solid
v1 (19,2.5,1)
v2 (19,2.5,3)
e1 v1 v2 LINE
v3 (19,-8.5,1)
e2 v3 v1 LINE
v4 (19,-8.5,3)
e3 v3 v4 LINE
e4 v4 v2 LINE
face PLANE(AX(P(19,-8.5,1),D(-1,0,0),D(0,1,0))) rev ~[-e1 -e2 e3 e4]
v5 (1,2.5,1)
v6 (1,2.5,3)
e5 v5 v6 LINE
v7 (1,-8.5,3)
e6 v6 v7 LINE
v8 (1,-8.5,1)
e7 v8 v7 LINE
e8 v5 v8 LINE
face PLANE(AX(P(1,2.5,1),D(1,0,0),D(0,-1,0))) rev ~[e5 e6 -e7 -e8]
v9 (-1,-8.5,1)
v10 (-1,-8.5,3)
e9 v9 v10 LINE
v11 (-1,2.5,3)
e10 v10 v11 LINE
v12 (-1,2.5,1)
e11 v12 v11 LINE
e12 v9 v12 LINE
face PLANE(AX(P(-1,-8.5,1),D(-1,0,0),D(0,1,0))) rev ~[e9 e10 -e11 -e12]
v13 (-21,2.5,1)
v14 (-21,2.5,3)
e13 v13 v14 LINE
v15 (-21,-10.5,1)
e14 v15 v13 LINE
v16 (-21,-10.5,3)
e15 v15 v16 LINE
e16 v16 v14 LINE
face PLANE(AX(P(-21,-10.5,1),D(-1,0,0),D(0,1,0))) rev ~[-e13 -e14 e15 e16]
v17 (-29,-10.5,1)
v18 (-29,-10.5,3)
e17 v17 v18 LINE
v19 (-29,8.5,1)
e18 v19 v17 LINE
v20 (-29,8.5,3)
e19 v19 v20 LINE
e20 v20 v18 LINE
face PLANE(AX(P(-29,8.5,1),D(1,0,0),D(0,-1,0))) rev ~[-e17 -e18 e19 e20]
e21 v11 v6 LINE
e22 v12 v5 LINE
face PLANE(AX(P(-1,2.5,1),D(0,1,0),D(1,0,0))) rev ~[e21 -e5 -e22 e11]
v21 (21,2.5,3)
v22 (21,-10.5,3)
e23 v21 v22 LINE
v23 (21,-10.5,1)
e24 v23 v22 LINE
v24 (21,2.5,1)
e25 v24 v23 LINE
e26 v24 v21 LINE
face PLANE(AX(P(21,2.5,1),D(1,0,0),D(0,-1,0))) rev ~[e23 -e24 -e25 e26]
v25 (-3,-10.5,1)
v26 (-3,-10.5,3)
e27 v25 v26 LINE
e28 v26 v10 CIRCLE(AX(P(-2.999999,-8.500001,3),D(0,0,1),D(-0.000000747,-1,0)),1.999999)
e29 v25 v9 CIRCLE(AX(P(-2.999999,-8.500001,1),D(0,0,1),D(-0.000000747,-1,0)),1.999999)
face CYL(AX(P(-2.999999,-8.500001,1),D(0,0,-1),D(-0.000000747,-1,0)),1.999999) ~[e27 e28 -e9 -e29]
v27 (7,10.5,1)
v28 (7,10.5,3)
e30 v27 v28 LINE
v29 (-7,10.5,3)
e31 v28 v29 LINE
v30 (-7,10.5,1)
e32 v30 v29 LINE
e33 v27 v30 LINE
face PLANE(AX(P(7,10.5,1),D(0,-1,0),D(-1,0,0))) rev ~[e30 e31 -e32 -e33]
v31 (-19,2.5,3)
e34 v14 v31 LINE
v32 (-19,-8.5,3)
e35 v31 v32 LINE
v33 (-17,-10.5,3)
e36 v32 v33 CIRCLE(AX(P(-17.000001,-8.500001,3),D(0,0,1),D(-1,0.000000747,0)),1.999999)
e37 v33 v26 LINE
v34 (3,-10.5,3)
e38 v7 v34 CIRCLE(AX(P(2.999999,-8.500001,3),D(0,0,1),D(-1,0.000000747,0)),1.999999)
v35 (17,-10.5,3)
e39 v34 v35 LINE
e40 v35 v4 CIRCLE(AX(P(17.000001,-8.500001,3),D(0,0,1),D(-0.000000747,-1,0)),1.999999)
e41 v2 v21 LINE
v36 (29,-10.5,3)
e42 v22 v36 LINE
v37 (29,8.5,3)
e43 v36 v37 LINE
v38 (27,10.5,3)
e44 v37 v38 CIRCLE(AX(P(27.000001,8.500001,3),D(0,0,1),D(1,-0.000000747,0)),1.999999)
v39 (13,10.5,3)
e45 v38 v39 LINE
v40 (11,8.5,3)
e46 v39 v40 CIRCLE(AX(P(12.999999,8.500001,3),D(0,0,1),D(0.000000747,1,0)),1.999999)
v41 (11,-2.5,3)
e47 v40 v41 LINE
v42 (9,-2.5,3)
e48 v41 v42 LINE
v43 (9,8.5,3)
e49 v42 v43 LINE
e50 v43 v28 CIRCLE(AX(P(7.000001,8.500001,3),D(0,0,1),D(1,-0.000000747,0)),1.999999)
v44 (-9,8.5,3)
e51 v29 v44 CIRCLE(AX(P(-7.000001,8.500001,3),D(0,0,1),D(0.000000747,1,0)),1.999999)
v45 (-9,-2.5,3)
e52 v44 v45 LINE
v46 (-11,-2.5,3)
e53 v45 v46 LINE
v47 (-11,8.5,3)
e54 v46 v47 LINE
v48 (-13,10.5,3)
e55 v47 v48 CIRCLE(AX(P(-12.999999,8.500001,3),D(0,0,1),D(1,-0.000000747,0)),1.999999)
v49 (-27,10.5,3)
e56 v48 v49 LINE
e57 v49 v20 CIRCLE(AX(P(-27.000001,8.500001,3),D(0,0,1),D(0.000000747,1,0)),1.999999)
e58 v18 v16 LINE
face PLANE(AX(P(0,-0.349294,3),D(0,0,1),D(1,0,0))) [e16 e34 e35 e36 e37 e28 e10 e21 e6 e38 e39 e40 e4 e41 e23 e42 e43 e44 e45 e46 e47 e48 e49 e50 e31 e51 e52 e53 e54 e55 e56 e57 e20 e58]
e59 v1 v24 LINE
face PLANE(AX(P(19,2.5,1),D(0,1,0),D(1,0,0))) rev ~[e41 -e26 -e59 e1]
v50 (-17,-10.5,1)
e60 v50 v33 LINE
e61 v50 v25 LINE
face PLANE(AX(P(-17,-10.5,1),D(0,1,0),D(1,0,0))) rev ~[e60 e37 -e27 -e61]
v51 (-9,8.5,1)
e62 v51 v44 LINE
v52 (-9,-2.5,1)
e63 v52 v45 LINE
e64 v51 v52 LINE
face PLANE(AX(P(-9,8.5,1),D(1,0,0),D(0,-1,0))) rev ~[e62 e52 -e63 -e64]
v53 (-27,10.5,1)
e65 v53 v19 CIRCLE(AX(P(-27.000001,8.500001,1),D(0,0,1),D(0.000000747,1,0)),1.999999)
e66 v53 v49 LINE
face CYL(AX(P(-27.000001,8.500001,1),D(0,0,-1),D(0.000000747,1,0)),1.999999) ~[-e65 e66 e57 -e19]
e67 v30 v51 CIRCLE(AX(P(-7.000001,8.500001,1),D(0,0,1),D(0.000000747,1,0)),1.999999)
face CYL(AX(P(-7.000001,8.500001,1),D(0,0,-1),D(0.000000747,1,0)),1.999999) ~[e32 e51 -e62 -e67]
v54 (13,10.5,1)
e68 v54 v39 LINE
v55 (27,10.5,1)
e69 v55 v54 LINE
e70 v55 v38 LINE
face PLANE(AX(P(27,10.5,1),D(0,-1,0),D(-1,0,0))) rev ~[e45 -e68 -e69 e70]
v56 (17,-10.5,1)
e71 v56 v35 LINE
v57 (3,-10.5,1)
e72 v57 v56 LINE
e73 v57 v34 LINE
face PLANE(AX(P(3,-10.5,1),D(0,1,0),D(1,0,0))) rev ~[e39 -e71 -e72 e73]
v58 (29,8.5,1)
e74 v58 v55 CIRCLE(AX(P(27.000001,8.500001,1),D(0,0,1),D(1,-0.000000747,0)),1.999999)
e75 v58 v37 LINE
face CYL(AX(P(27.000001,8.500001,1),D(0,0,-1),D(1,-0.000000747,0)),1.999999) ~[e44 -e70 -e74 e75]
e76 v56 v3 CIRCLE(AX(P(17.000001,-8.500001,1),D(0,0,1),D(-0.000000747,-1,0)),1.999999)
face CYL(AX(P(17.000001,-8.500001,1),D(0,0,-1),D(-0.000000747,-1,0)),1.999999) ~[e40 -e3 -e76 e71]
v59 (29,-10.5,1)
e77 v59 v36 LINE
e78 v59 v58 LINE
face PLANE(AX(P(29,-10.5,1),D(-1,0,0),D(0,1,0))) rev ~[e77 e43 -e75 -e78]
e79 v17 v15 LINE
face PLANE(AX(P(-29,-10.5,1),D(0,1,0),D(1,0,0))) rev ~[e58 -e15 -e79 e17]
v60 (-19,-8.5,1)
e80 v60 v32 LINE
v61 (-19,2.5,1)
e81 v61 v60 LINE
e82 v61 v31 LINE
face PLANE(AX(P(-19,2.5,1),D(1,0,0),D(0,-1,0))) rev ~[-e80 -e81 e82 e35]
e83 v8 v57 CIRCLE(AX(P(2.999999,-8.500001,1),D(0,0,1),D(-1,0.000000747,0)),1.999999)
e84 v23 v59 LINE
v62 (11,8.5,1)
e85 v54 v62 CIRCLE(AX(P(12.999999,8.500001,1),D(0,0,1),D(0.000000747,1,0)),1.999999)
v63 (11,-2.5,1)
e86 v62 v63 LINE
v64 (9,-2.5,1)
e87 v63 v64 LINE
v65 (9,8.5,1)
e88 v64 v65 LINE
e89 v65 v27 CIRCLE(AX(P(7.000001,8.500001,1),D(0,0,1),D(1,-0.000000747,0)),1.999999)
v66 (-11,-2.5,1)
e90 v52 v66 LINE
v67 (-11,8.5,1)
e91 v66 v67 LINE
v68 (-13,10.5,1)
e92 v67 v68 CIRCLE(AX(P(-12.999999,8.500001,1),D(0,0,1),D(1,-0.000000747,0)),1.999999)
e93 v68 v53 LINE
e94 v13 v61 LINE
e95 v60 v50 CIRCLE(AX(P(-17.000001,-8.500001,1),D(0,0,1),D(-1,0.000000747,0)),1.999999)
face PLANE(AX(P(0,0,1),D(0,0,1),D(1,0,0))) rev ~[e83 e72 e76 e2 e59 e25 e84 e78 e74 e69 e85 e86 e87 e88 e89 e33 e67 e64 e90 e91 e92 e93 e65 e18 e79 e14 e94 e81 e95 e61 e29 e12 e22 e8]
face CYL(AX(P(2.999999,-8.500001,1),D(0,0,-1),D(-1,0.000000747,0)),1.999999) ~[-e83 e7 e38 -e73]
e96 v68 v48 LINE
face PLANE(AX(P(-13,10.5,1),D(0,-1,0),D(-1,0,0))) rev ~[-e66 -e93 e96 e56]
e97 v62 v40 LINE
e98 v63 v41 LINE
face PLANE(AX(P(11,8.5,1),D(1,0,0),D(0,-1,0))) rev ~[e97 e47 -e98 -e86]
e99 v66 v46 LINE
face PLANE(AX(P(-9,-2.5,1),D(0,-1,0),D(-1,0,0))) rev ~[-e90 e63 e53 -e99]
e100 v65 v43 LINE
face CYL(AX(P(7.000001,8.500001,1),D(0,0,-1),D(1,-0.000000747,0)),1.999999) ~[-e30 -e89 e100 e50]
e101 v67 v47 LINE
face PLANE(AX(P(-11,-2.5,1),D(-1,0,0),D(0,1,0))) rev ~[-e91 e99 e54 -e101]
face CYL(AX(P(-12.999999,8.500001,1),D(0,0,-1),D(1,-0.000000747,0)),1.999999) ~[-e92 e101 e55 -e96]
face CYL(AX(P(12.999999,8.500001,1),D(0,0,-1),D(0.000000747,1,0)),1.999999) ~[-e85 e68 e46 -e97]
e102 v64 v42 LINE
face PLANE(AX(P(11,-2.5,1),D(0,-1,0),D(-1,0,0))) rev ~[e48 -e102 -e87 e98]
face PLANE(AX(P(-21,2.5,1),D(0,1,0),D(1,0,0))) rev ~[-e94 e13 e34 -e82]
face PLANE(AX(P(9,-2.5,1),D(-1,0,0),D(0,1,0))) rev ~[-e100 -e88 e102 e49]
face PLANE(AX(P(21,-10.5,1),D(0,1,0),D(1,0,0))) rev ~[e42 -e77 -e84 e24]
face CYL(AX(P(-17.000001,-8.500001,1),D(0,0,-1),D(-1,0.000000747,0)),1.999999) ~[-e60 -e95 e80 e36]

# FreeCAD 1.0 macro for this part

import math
import FreeCAD as App
import Part
import Sketcher
from FreeCAD import Vector


def add_polygon(sketch, points):
    """Adds a closed chain of lines whose ends are joined by coincident constraints."""
    first, n = sketch.GeometryCount, len(points)
    for a, b in zip(points, points[1:] + points[:1]):
        sketch.addGeometry(Part.LineSegment(App.Vector(*a, 0), App.Vector(*b, 0)), False)
    for i in range(n):
        sketch.addConstraint(Sketcher.Constraint("Coincident", first + i, 2, first + (i + 1) % n, 1))

doc = App.newDocument("Part")
params = doc.addObject("Spreadsheet::Sheet", "Params")
for row, (alias, value) in enumerate([
    ("sketch1_width", "62 mm"),
    ("sketch1_height", "25 mm"),
    ("pad1_length", "1 mm"),
    ("sketch2_radius", "1.999999 mm"),
    ("sketch2_width", "14 mm"),
    ("sketch2_width2", "8 mm"),
    ("sketch2_height", "19 mm"),
    ("sketch2_height2", "13 mm"),
    ("pad2_length", "2 mm"),
    ("sketch3_width", "62 mm"),
    ("sketch3_height", "25 mm"),
    ("pocket1_length", "1 mm"),
], start=1):
    params.set(f"A{row}", alias)
    params.set(f"B{row}", "=" + value)
    params.setAlias(f"B{row}", alias)

body = doc.addObject("PartDesign::Body", "Body")

# Sketch on XY plane
sketch1 = body.newObject("Sketcher::SketchObject", "Sketch")
sketch1.AttachmentSupport = (doc.getObject("XY_Plane"), [""])
sketch1.MapMode = "FlatFace"
add_polygon(sketch1, [(-31, 12), (-31, -12), (31, -12), (31, 12)])  # lines 0-3
sketch1.addConstraint(Sketcher.Constraint("Vertical", 0))
sketch1.addConstraint(Sketcher.Constraint("Horizontal", 1))
sketch1.addConstraint(Sketcher.Constraint("Vertical", 2))
sketch1.addConstraint(Sketcher.Constraint("Horizontal", 3))
sketch1.addConstraint(Sketcher.Constraint("Symmetric", 0, 2, 2, 2, -1, 1))
sketch1.addConstraint(Sketcher.Constraint("DistanceX", 1, 1, 1, 2, 62.0))
sketch1.addConstraint(Sketcher.Constraint("DistanceY", 0, 2, 0, 1, 25.0))
sketch1.setExpression("Constraints[9]", "Params.sketch1_width")
sketch1.setExpression("Constraints[10]", "Params.sketch1_height")
pad1 = body.newObject("PartDesign::Pad", "Pad")
pad1.Profile = sketch1
pad1.setExpression("Length", "Params.pad1_length")

# Sketch on XY plane
sketch2 = body.newObject("Sketcher::SketchObject", "Sketch001")
sketch2.AttachmentSupport = (doc.getObject("XY_Plane"), [""])
sketch2.MapMode = "FlatFace"
sketch2.AttachmentOffset = App.Placement(Vector(0, 0, 1), App.Rotation())
sketch2.addGeometry(Part.LineSegment(Vector(-13, 10.5, 0), Vector(-27, 10.5, 0)), False)
sketch2.addGeometry(Part.ArcOfCircle(Part.Circle(Vector(-27, 8.5, 0), Vector(0, 0, 1), 2), math.radians(90), math.radians(180)), False)
sketch2.addGeometry(Part.LineSegment(Vector(-29, 8.5, 0), Vector(-29, -10.5, 0)), False)
sketch2.addGeometry(Part.LineSegment(Vector(-29, -10.5, 0), Vector(-21, -10.5, 0)), False)
sketch2.addGeometry(Part.LineSegment(Vector(-21, -10.5, 0), Vector(-21, 2.5, 0)), False)
sketch2.addGeometry(Part.LineSegment(Vector(-21, 2.5, 0), Vector(-19, 2.5, 0)), False)
sketch2.addGeometry(Part.LineSegment(Vector(-19, 2.5, 0), Vector(-19, -8.5, 0)), False)
sketch2.addGeometry(Part.ArcOfCircle(Part.Circle(Vector(-17, -8.5, 0), Vector(0, 0, 1), 2), math.radians(180), math.radians(270)), False)
sketch2.addGeometry(Part.LineSegment(Vector(-17, -10.5, 0), Vector(-3, -10.5, 0)), False)
sketch2.addGeometry(Part.ArcOfCircle(Part.Circle(Vector(-3, -8.5, 0), Vector(0, 0, 1), 2), math.radians(-90), math.radians(0)), False)
sketch2.addGeometry(Part.LineSegment(Vector(-1, -8.5, 0), Vector(-1, 2.5, 0)), False)
sketch2.addGeometry(Part.LineSegment(Vector(-1, 2.5, 0), Vector(1, 2.5, 0)), False)
sketch2.addGeometry(Part.LineSegment(Vector(1, 2.5, 0), Vector(1, -8.5, 0)), False)
sketch2.addGeometry(Part.ArcOfCircle(Part.Circle(Vector(3, -8.5, 0), Vector(0, 0, 1), 2), math.radians(180), math.radians(270)), False)
sketch2.addGeometry(Part.LineSegment(Vector(3, -10.5, 0), Vector(17, -10.5, 0)), False)
sketch2.addGeometry(Part.ArcOfCircle(Part.Circle(Vector(17, -8.5, 0), Vector(0, 0, 1), 2), math.radians(-90), math.radians(0)), False)
sketch2.addGeometry(Part.LineSegment(Vector(19, -8.5, 0), Vector(19, 2.5, 0)), False)
sketch2.addGeometry(Part.LineSegment(Vector(19, 2.5, 0), Vector(21, 2.5, 0)), False)
sketch2.addGeometry(Part.LineSegment(Vector(21, 2.5, 0), Vector(21, -10.5, 0)), False)
sketch2.addGeometry(Part.LineSegment(Vector(21, -10.5, 0), Vector(29, -10.5, 0)), False)
sketch2.addGeometry(Part.LineSegment(Vector(29, -10.5, 0), Vector(29, 8.5, 0)), False)
sketch2.addGeometry(Part.ArcOfCircle(Part.Circle(Vector(27, 8.5, 0), Vector(0, 0, 1), 2), math.radians(0), math.radians(90)), False)
sketch2.addGeometry(Part.LineSegment(Vector(27, 10.5, 0), Vector(13, 10.5, 0)), False)
sketch2.addGeometry(Part.ArcOfCircle(Part.Circle(Vector(13, 8.5, 0), Vector(0, 0, 1), 2), math.radians(90), math.radians(180)), False)
sketch2.addGeometry(Part.LineSegment(Vector(11, 8.5, 0), Vector(11, -2.5, 0)), False)
sketch2.addGeometry(Part.LineSegment(Vector(11, -2.5, 0), Vector(9, -2.5, 0)), False)
sketch2.addGeometry(Part.LineSegment(Vector(9, -2.5, 0), Vector(9, 8.5, 0)), False)
sketch2.addGeometry(Part.ArcOfCircle(Part.Circle(Vector(7, 8.5, 0), Vector(0, 0, 1), 2), math.radians(0), math.radians(90)), False)
sketch2.addGeometry(Part.LineSegment(Vector(7, 10.5, 0), Vector(-7, 10.5, 0)), False)
sketch2.addGeometry(Part.ArcOfCircle(Part.Circle(Vector(-7, 8.5, 0), Vector(0, 0, 1), 2), math.radians(90), math.radians(180)), False)
sketch2.addGeometry(Part.LineSegment(Vector(-9, 8.5, 0), Vector(-9, -2.5, 0)), False)
sketch2.addGeometry(Part.LineSegment(Vector(-9, -2.5, 0), Vector(-11, -2.5, 0)), False)
sketch2.addGeometry(Part.LineSegment(Vector(-11, -2.5, 0), Vector(-11, 8.5, 0)), False)
sketch2.addGeometry(Part.ArcOfCircle(Part.Circle(Vector(-13, 8.5, 0), Vector(0, 0, 1), 2), math.radians(0), math.radians(90)), False)
sketch2.addConstraint(Sketcher.Constraint("Tangent", 0, 2, 1, 1))
sketch2.addConstraint(Sketcher.Constraint("Tangent", 1, 2, 2, 1))
sketch2.addConstraint(Sketcher.Constraint("Coincident", 2, 2, 3, 1))
sketch2.addConstraint(Sketcher.Constraint("Coincident", 3, 2, 4, 1))
sketch2.addConstraint(Sketcher.Constraint("Coincident", 4, 2, 5, 1))
sketch2.addConstraint(Sketcher.Constraint("Coincident", 5, 2, 6, 1))
sketch2.addConstraint(Sketcher.Constraint("Tangent", 6, 2, 7, 1))
sketch2.addConstraint(Sketcher.Constraint("Tangent", 7, 2, 8, 1))
sketch2.addConstraint(Sketcher.Constraint("Tangent", 8, 2, 9, 1))
sketch2.addConstraint(Sketcher.Constraint("Tangent", 9, 2, 10, 1))
sketch2.addConstraint(Sketcher.Constraint("Coincident", 10, 2, 11, 1))
sketch2.addConstraint(Sketcher.Constraint("Coincident", 11, 2, 12, 1))
sketch2.addConstraint(Sketcher.Constraint("Tangent", 12, 2, 13, 1))
sketch2.addConstraint(Sketcher.Constraint("Tangent", 13, 2, 14, 1))
sketch2.addConstraint(Sketcher.Constraint("Tangent", 14, 2, 15, 1))
sketch2.addConstraint(Sketcher.Constraint("Tangent", 15, 2, 16, 1))
sketch2.addConstraint(Sketcher.Constraint("Coincident", 16, 2, 17, 1))
sketch2.addConstraint(Sketcher.Constraint("Coincident", 17, 2, 18, 1))
sketch2.addConstraint(Sketcher.Constraint("Coincident", 18, 2, 19, 1))
sketch2.addConstraint(Sketcher.Constraint("Coincident", 19, 2, 20, 1))
sketch2.addConstraint(Sketcher.Constraint("Tangent", 20, 2, 21, 1))
sketch2.addConstraint(Sketcher.Constraint("Tangent", 21, 2, 22, 1))
sketch2.addConstraint(Sketcher.Constraint("Tangent", 22, 2, 23, 1))
sketch2.addConstraint(Sketcher.Constraint("Tangent", 23, 2, 24, 1))
sketch2.addConstraint(Sketcher.Constraint("Coincident", 24, 2, 25, 1))
sketch2.addConstraint(Sketcher.Constraint("Coincident", 25, 2, 26, 1))
sketch2.addConstraint(Sketcher.Constraint("Tangent", 26, 2, 27, 1))
sketch2.addConstraint(Sketcher.Constraint("Tangent", 27, 2, 28, 1))
sketch2.addConstraint(Sketcher.Constraint("Tangent", 28, 2, 29, 1))
sketch2.addConstraint(Sketcher.Constraint("Tangent", 29, 2, 30, 1))
sketch2.addConstraint(Sketcher.Constraint("Coincident", 30, 2, 31, 1))
sketch2.addConstraint(Sketcher.Constraint("Coincident", 31, 2, 32, 1))
sketch2.addConstraint(Sketcher.Constraint("Tangent", 32, 2, 33, 1))
sketch2.addConstraint(Sketcher.Constraint("Tangent", 33, 2, 0, 1))
sketch2.addConstraint(Sketcher.Constraint("Horizontal", 0))
sketch2.addConstraint(Sketcher.Constraint("Vertical", 2))
sketch2.addConstraint(Sketcher.Constraint("Horizontal", 3))
sketch2.addConstraint(Sketcher.Constraint("Vertical", 4))
sketch2.addConstraint(Sketcher.Constraint("Horizontal", 5))
sketch2.addConstraint(Sketcher.Constraint("Vertical", 6))
sketch2.addConstraint(Sketcher.Constraint("Horizontal", 8))
sketch2.addConstraint(Sketcher.Constraint("Vertical", 10))
sketch2.addConstraint(Sketcher.Constraint("Horizontal", 11))
sketch2.addConstraint(Sketcher.Constraint("Vertical", 12))
sketch2.addConstraint(Sketcher.Constraint("Horizontal", 14))
sketch2.addConstraint(Sketcher.Constraint("Vertical", 16))
sketch2.addConstraint(Sketcher.Constraint("Horizontal", 17))
sketch2.addConstraint(Sketcher.Constraint("Vertical", 18))
sketch2.addConstraint(Sketcher.Constraint("Horizontal", 19))
sketch2.addConstraint(Sketcher.Constraint("Vertical", 20))
sketch2.addConstraint(Sketcher.Constraint("Horizontal", 22))
sketch2.addConstraint(Sketcher.Constraint("Vertical", 24))
sketch2.addConstraint(Sketcher.Constraint("Horizontal", 25))
sketch2.addConstraint(Sketcher.Constraint("Vertical", 26))
sketch2.addConstraint(Sketcher.Constraint("Horizontal", 28))
sketch2.addConstraint(Sketcher.Constraint("Vertical", 30))
sketch2.addConstraint(Sketcher.Constraint("Horizontal", 31))
sketch2.addConstraint(Sketcher.Constraint("Vertical", 32))
sketch2.addConstraint(Sketcher.Constraint("Equal", 1, 7))
sketch2.addConstraint(Sketcher.Constraint("Equal", 7, 9))
sketch2.addConstraint(Sketcher.Constraint("Equal", 9, 13))
sketch2.addConstraint(Sketcher.Constraint("Equal", 13, 15))
sketch2.addConstraint(Sketcher.Constraint("Equal", 15, 21))
sketch2.addConstraint(Sketcher.Constraint("Equal", 21, 23))
sketch2.addConstraint(Sketcher.Constraint("Equal", 23, 27))
sketch2.addConstraint(Sketcher.Constraint("Equal", 27, 29))
sketch2.addConstraint(Sketcher.Constraint("Equal", 29, 33))
sketch2.addConstraint(Sketcher.Constraint("Symmetric", 9, 3, 13, 3, -2))
sketch2.addConstraint(Sketcher.Constraint("Symmetric", 1, 3, 21, 3, -2))
sketch2.addConstraint(Sketcher.Constraint("Symmetric", 5, 2, 16, 2, -2))
sketch2.addConstraint(Sketcher.Constraint("Symmetric", 3, 2, 18, 2, -2))
sketch2.addConstraint(Sketcher.Constraint("Symmetric", 25, 2, 30, 2, -2))
sketch2.addConstraint(Sketcher.Constraint("Horizontal", 23, 3, 27, 3))
sketch2.addConstraint(Sketcher.Constraint("Horizontal", 3, 2, 7, 2))
sketch2.addConstraint(Sketcher.Constraint("Horizontal", 5, 2, 10, 2))
sketch2.addConstraint(Sketcher.Constraint("Equal", 0, 8))
sketch2.addConstraint(Sketcher.Constraint("Equal", 5, 11))
sketch2.addConstraint(Sketcher.Constraint("Equal", 14, 22))
sketch2.addConstraint(Sketcher.Constraint("Equal", 17, 25))
sketch2.addConstraint(Sketcher.Constraint("Equal", 22, 28))
sketch2.addConstraint(Sketcher.Constraint("Equal", 16, 24))
sketch2.addConstraint(Sketcher.Constraint("Radius", 1, 1.999999))
sketch2.addConstraint(Sketcher.Constraint("DistanceX", 0, 2, 0, 1, 14.0))
sketch2.addConstraint(Sketcher.Constraint("DistanceX", 3, 1, 3, 2, 8.0))
sketch2.addConstraint(Sketcher.Constraint("DistanceY", 2, 2, 2, 1, 19.0))
sketch2.addConstraint(Sketcher.Constraint("DistanceY", 4, 1, 4, 2, 13.0))
sketch2.addConstraint(Sketcher.Constraint("DistanceY", -1, 1, 1, 3, 8.500001))
sketch2.setExpression("Constraints[81]", "Params.sketch2_radius")
sketch2.setExpression("Constraints[82]", "Params.sketch2_width")
sketch2.setExpression("Constraints[83]", "Params.sketch2_width2")
sketch2.setExpression("Constraints[84]", "Params.sketch2_height")
sketch2.setExpression("Constraints[85]", "Params.sketch2_height2")
pad2 = body.newObject("PartDesign::Pad", "Pad001")
pad2.Profile = sketch2
pad2.setExpression("Length", "Params.pad2_length")

# Sketch on XY plane
sketch3 = body.newObject("Sketcher::SketchObject", "Sketch002")
sketch3.AttachmentSupport = (doc.getObject("XY_Plane"), [""])
sketch3.MapMode = "FlatFace"
sketch3.AttachmentOffset = App.Placement(Vector(0, 0, 1), App.Rotation())
add_polygon(sketch3, [(-31, 12), (-31, -12), (31, -12), (31, 12)])  # lines 0-3
sketch3.addConstraint(Sketcher.Constraint("Vertical", 0))
sketch3.addConstraint(Sketcher.Constraint("Horizontal", 1))
sketch3.addConstraint(Sketcher.Constraint("Vertical", 2))
sketch3.addConstraint(Sketcher.Constraint("Horizontal", 3))
sketch3.addConstraint(Sketcher.Constraint("Symmetric", 0, 2, 2, 2, -1, 1))
sketch3.addConstraint(Sketcher.Constraint("DistanceX", 1, 1, 1, 2, 62.0))
sketch3.addConstraint(Sketcher.Constraint("DistanceY", 0, 2, 0, 1, 25.0))
sketch3.setExpression("Constraints[9]", "Params.sketch3_width")
sketch3.setExpression("Constraints[10]", "Params.sketch3_height")
pocket1 = body.newObject("PartDesign::Pocket", "Pocket")
pocket1.Profile = sketch3
pocket1.setExpression("Length", "Params.pocket1_length")

doc.recompute()
